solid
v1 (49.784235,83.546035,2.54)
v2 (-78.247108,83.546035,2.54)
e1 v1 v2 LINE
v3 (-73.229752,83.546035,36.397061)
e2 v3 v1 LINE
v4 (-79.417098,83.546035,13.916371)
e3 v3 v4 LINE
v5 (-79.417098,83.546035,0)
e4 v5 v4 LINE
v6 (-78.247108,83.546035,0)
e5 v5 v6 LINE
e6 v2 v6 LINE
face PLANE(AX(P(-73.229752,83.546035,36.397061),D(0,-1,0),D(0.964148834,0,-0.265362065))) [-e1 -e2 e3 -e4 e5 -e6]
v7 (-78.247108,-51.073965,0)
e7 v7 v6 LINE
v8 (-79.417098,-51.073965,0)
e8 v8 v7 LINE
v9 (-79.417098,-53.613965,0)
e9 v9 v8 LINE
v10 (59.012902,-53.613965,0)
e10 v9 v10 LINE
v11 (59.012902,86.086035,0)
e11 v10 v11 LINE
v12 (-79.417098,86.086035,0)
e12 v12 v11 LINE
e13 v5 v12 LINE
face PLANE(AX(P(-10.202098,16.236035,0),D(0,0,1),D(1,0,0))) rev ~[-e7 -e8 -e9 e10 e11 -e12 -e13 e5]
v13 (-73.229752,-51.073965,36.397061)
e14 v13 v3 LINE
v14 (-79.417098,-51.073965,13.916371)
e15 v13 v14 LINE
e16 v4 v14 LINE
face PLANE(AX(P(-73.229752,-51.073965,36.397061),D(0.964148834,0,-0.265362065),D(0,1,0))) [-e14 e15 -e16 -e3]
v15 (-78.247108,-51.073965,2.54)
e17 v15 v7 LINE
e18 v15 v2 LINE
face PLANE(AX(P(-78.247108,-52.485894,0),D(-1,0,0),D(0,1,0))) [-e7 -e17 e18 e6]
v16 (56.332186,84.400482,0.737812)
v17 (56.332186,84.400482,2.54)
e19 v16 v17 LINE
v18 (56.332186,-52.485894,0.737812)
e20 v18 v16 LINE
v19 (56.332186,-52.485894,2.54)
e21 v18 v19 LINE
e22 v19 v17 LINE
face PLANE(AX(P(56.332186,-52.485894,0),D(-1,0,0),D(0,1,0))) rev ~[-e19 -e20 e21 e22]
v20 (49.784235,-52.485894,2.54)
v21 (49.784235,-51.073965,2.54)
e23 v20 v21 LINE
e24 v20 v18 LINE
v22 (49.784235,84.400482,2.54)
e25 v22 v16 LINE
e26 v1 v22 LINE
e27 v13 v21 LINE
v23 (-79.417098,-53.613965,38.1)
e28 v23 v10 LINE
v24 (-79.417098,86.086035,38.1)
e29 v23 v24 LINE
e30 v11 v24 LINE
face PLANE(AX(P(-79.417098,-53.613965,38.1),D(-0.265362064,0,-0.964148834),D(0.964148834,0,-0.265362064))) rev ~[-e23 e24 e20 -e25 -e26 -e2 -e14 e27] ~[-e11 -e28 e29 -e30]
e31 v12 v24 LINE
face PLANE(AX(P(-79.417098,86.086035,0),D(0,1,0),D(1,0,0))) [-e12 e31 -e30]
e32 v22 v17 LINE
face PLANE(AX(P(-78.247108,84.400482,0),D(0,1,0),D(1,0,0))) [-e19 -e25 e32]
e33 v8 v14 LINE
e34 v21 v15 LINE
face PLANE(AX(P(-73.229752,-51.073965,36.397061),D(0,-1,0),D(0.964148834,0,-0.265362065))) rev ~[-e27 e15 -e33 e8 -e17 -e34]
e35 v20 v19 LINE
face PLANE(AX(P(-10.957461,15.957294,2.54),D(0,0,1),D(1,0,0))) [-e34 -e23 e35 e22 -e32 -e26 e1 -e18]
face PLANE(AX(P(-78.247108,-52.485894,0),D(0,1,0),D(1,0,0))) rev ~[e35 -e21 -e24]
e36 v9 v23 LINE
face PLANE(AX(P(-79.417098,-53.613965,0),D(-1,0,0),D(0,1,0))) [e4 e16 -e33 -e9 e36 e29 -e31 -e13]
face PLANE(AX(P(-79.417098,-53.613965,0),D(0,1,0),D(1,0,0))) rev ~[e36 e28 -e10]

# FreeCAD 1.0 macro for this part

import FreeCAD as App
import Part
import Sketcher
Q = App.Units.Quantity

doc = App.newDocument("Part")
params = doc.addObject("Spreadsheet::Sheet", "Params")
for row, (alias, value) in enumerate([
    ("sketch1_height", "5.5 in"),
    ("sketch1_width", "5.45 in"),
    ("pad1_length", "1.5 in"),
    ("sketch2_height", "1.5 in"),
    ("sketch2_width", "5.45 in"),
    ("sketch3_height", "5.3 in"),
    ("sketch3_width", "5.25 in"),
    ("pad2_length", "0.1 in"),
], start=1):
    params.set(f"A{row}", alias)
    params.set(f"B{row}", "=" + value)
    params.setAlias(f"B{row}", alias)

body = doc.addObject("PartDesign::Body", "Body")

# Sketch on XY plane
sketch1 = body.newObject("Sketcher::SketchObject", "Sketch")
sketch1.AttachmentSupport = (doc.getObject("XY_Plane"), [""])
sketch1.MapMode = "FlatFace"
sketch1.addGeometry([
    Part.LineSegment(App.Vector(-79, 86, 0), App.Vector(-79, -54, 0)),
    Part.LineSegment(App.Vector(-79, -54, 0), App.Vector(59, -54, 0)),
    Part.LineSegment(App.Vector(59, -54, 0), App.Vector(59, 86, 0)),
    Part.LineSegment(App.Vector(59, 86, 0), App.Vector(-79, 86, 0)),
], False)
sketch1.addConstraint([
    Sketcher.Constraint("Coincident", 0, 2, 1, 1),
    Sketcher.Constraint("Coincident", 1, 2, 2, 1),
    Sketcher.Constraint("Coincident", 2, 2, 3, 1),
    Sketcher.Constraint("Coincident", 3, 2, 0, 1),
    Sketcher.Constraint("Vertical", 0),
    Sketcher.Constraint("Horizontal", 1),
    Sketcher.Constraint("Vertical", 2),
    Sketcher.Constraint("Horizontal", 3),
    Sketcher.Constraint("DistanceY", 0, 2, 0, 1, Q("5.5 in")),
    Sketcher.Constraint("DistanceX", 1, 1, 1, 2, Q("5.45 in")),
    Sketcher.Constraint("DistanceX", 0, 2, -1, 1, Q("79.417098 mm")),
    Sketcher.Constraint("DistanceY", 0, 2, -1, 1, Q("53.613965 mm")),
])
sketch1.setExpression("Constraints[8]", "Params.sketch1_height")
sketch1.setExpression("Constraints[9]", "Params.sketch1_width")
pad1 = body.newObject("PartDesign::Pad", "Pad")
pad1.Profile = sketch1
pad1.setExpression("Length", "Params.pad1_length")

# Sketch on XZ plane
sketch2 = body.newObject("Sketcher::SketchObject", "Sketch001")
sketch2.AttachmentSupport = (doc.getObject("XZ_Plane"), [""])
sketch2.MapMode = "FlatFace"
sketch2.AttachmentOffset = App.Placement(App.Vector(0, 0, 53.613965), App.Rotation())
sketch2.addGeometry([
    Part.LineSegment(App.Vector(59, 38, 0), App.Vector(-79, 38, 0)),
    Part.LineSegment(App.Vector(-79, 38, 0), App.Vector(59, 0, 0)),
    Part.LineSegment(App.Vector(59, 0, 0), App.Vector(59, 38, 0)),
], False)
sketch2.addConstraint([
    Sketcher.Constraint("Coincident", 0, 2, 1, 1),
    Sketcher.Constraint("Coincident", 1, 2, 2, 1),
    Sketcher.Constraint("Coincident", 2, 2, 0, 1),
    Sketcher.Constraint("Horizontal", 0),
    Sketcher.Constraint("Vertical", 2),
    Sketcher.Constraint("PointOnObject", 1, 2, -1),
    Sketcher.Constraint("DistanceY", 2, 1, 2, 2, Q("1.5 in")),
    Sketcher.Constraint("DistanceX", 0, 2, 0, 1, Q("5.45 in")),
    Sketcher.Constraint("DistanceX", 0, 2, -1, 1, Q("79.417098 mm")),
])
sketch2.setExpression("Constraints[6]", "Params.sketch2_height")
sketch2.setExpression("Constraints[7]", "Params.sketch2_width")
pocket1 = body.newObject("PartDesign::Pocket", "Pocket")
pocket1.Profile = sketch2
pocket1.Type = "ThroughAll"

# Sketch on an angled plane
sketch3 = body.newObject("Sketcher::SketchObject", "Sketch002")
sketch3.Placement = App.Placement(App.Vector(4.155513, 0, 15.098364), App.Rotation(App.Vector(0.964148834, 0, -0.265362065), App.Vector(0, 1, 0), App.Vector(0.265362065, 0, 0.964148834), "ZXY"))
sketch3.addGeometry([
    Part.LineSegment(App.Vector(-80, 84, 0), App.Vector(-80, -51, 0)),
    Part.LineSegment(App.Vector(-80, -51, 0), App.Vector(53, -51, 0)),
    Part.LineSegment(App.Vector(53, -51, 0), App.Vector(53, 84, 0)),
    Part.LineSegment(App.Vector(53, 84, 0), App.Vector(-80, 84, 0)),
], False)
sketch3.addConstraint([
    Sketcher.Constraint("Coincident", 0, 2, 1, 1),
    Sketcher.Constraint("Coincident", 1, 2, 2, 1),
    Sketcher.Constraint("Coincident", 2, 2, 3, 1),
    Sketcher.Constraint("Coincident", 3, 2, 0, 1),
    Sketcher.Constraint("Vertical", 0),
    Sketcher.Constraint("Horizontal", 1),
    Sketcher.Constraint("Vertical", 2),
    Sketcher.Constraint("Horizontal", 3),
    Sketcher.Constraint("DistanceY", 0, 2, 0, 1, Q("5.3 in")),
    Sketcher.Constraint("DistanceX", 1, 1, 1, 2, Q("5.25 in")),
    Sketcher.Constraint("DistanceX", 0, 2, -1, 1, Q("80.262779 mm")),
    Sketcher.Constraint("DistanceY", 0, 2, -1, 1, Q("51.073965 mm")),
])
sketch3.setExpression("Constraints[8]", "Params.sketch3_height")
sketch3.setExpression("Constraints[9]", "Params.sketch3_width")
pocket2 = body.newObject("PartDesign::Pocket", "Pocket001")
pocket2.Profile = sketch3
pocket2.Type = "ThroughAll"

# Sketch on XY plane
sketch4 = body.newObject("Sketcher::SketchObject", "Sketch003")
sketch4.AttachmentSupport = (doc.getObject("XY_Plane"), [""])
sketch4.MapMode = "FlatFace"
sketch4.addGeometry([
    Part.LineSegment(App.Vector(-78, 84, 0), App.Vector(-78, -52, 0)),
    Part.LineSegment(App.Vector(-78, -52, 0), App.Vector(56, -52, 0)),
    Part.LineSegment(App.Vector(56, -52, 0), App.Vector(56, 84, 0)),
    Part.LineSegment(App.Vector(56, 84, 0), App.Vector(-78, 84, 0)),
], False)
sketch4.addConstraint([
    Sketcher.Constraint("Coincident", 0, 2, 1, 1),
    Sketcher.Constraint("Coincident", 1, 2, 2, 1),
    Sketcher.Constraint("Coincident", 2, 2, 3, 1),
    Sketcher.Constraint("Coincident", 3, 2, 0, 1),
    Sketcher.Constraint("Vertical", 0),
    Sketcher.Constraint("Horizontal", 1),
    Sketcher.Constraint("Vertical", 2),
    Sketcher.Constraint("Horizontal", 3),
    Sketcher.Constraint("DistanceX", 1, 1, 1, 2, Q("134.579293 mm")),
    Sketcher.Constraint("DistanceY", 0, 2, 0, 1, Q("136.886377 mm")),
    Sketcher.Constraint("DistanceX", 0, 2, -1, 1, Q("78.247108 mm")),
    Sketcher.Constraint("DistanceY", 0, 2, -1, 1, Q("52.485894 mm")),
])
pad2 = body.newObject("PartDesign::Pad", "Pad001")
pad2.Profile = sketch4
pad2.setExpression("Length", "Params.pad2_length")

doc.recompute()
